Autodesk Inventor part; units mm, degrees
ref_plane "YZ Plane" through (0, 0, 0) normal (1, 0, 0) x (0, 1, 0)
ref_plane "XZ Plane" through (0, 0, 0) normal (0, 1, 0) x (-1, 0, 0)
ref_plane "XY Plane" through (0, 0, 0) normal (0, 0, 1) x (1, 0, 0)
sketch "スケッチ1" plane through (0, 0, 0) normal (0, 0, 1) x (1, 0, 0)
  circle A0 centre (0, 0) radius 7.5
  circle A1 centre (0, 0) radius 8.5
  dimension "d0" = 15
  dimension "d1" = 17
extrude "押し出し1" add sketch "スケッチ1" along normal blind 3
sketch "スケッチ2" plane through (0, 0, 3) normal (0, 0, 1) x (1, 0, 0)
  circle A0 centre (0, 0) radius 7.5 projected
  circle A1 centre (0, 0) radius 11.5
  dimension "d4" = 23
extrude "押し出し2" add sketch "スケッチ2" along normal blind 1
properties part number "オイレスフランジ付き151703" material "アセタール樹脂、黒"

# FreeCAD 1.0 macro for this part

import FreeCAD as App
import Part
import Sketcher

doc = App.newDocument("Part")
params = doc.addObject("Spreadsheet::Sheet", "Params")
for row, (alias, value) in enumerate([
    ("sketch1_diameter", "17 mm"),
    ("sketch1_diameter2", "15 mm"),
    ("pad1_length", "3 mm"),
    ("sketch2_diameter", "23 mm"),
    ("sketch2_diameter2", "15 mm"),
    ("pad2_length", "1 mm"),
], start=1):
    params.set(f"A{row}", alias)
    params.set(f"B{row}", "=" + value)
    params.setAlias(f"B{row}", alias)

body = doc.addObject("PartDesign::Body", "Body")

sketch1 = body.newObject("Sketcher::SketchObject", "Sketch")
sketch1.AttachmentSupport = (doc.getObject("XY_Plane"), [""])
sketch1.MapMode = "FlatFace"
sketch1.addGeometry([
    Part.Circle(App.Vector(0, 0, 0), App.Vector(0, 0, 1), 8),
    Part.Circle(App.Vector(0, 0, 0), App.Vector(0, 0, 1), 8),
], False)
sketch1.addConstraint([
    Sketcher.Constraint("Coincident", 0, 3, -1, 1),
    Sketcher.Constraint("Coincident", 1, 3, -1, 1),
    Sketcher.Constraint("Diameter", 0, 17.0),
    Sketcher.Constraint("Diameter", 1, 15.0),
])
sketch1.setExpression("Constraints[2]", "Params.sketch1_diameter")
sketch1.setExpression("Constraints[3]", "Params.sketch1_diameter2")
pad1 = body.newObject("PartDesign::Pad", "Pad")
pad1.Profile = sketch1
pad1.setExpression("Length", "Params.pad1_length")

sketch2 = body.newObject("Sketcher::SketchObject", "Sketch001")
sketch2.AttachmentSupport = (doc.getObject("XY_Plane"), [""])
sketch2.MapMode = "FlatFace"
sketch2.AttachmentOffset = App.Placement(App.Vector(0, 0, 3), App.Rotation())
sketch2.addGeometry([
    Part.Circle(App.Vector(0, 0, 0), App.Vector(0, 0, 1), 12),
    Part.Circle(App.Vector(0, 0, 0), App.Vector(0, 0, 1), 8),
], False)
sketch2.addConstraint([
    Sketcher.Constraint("Coincident", 0, 3, -1, 1),
    Sketcher.Constraint("Coincident", 1, 3, -1, 1),
    Sketcher.Constraint("Diameter", 0, 23.0),
    Sketcher.Constraint("Diameter", 1, 15.0),
])
sketch2.setExpression("Constraints[2]", "Params.sketch2_diameter")
sketch2.setExpression("Constraints[3]", "Params.sketch2_diameter2")
pad2 = body.newObject("PartDesign::Pad", "Pad001")
pad2.Profile = sketch2
pad2.setExpression("Length", "Params.pad2_length")

doc.recompute()
